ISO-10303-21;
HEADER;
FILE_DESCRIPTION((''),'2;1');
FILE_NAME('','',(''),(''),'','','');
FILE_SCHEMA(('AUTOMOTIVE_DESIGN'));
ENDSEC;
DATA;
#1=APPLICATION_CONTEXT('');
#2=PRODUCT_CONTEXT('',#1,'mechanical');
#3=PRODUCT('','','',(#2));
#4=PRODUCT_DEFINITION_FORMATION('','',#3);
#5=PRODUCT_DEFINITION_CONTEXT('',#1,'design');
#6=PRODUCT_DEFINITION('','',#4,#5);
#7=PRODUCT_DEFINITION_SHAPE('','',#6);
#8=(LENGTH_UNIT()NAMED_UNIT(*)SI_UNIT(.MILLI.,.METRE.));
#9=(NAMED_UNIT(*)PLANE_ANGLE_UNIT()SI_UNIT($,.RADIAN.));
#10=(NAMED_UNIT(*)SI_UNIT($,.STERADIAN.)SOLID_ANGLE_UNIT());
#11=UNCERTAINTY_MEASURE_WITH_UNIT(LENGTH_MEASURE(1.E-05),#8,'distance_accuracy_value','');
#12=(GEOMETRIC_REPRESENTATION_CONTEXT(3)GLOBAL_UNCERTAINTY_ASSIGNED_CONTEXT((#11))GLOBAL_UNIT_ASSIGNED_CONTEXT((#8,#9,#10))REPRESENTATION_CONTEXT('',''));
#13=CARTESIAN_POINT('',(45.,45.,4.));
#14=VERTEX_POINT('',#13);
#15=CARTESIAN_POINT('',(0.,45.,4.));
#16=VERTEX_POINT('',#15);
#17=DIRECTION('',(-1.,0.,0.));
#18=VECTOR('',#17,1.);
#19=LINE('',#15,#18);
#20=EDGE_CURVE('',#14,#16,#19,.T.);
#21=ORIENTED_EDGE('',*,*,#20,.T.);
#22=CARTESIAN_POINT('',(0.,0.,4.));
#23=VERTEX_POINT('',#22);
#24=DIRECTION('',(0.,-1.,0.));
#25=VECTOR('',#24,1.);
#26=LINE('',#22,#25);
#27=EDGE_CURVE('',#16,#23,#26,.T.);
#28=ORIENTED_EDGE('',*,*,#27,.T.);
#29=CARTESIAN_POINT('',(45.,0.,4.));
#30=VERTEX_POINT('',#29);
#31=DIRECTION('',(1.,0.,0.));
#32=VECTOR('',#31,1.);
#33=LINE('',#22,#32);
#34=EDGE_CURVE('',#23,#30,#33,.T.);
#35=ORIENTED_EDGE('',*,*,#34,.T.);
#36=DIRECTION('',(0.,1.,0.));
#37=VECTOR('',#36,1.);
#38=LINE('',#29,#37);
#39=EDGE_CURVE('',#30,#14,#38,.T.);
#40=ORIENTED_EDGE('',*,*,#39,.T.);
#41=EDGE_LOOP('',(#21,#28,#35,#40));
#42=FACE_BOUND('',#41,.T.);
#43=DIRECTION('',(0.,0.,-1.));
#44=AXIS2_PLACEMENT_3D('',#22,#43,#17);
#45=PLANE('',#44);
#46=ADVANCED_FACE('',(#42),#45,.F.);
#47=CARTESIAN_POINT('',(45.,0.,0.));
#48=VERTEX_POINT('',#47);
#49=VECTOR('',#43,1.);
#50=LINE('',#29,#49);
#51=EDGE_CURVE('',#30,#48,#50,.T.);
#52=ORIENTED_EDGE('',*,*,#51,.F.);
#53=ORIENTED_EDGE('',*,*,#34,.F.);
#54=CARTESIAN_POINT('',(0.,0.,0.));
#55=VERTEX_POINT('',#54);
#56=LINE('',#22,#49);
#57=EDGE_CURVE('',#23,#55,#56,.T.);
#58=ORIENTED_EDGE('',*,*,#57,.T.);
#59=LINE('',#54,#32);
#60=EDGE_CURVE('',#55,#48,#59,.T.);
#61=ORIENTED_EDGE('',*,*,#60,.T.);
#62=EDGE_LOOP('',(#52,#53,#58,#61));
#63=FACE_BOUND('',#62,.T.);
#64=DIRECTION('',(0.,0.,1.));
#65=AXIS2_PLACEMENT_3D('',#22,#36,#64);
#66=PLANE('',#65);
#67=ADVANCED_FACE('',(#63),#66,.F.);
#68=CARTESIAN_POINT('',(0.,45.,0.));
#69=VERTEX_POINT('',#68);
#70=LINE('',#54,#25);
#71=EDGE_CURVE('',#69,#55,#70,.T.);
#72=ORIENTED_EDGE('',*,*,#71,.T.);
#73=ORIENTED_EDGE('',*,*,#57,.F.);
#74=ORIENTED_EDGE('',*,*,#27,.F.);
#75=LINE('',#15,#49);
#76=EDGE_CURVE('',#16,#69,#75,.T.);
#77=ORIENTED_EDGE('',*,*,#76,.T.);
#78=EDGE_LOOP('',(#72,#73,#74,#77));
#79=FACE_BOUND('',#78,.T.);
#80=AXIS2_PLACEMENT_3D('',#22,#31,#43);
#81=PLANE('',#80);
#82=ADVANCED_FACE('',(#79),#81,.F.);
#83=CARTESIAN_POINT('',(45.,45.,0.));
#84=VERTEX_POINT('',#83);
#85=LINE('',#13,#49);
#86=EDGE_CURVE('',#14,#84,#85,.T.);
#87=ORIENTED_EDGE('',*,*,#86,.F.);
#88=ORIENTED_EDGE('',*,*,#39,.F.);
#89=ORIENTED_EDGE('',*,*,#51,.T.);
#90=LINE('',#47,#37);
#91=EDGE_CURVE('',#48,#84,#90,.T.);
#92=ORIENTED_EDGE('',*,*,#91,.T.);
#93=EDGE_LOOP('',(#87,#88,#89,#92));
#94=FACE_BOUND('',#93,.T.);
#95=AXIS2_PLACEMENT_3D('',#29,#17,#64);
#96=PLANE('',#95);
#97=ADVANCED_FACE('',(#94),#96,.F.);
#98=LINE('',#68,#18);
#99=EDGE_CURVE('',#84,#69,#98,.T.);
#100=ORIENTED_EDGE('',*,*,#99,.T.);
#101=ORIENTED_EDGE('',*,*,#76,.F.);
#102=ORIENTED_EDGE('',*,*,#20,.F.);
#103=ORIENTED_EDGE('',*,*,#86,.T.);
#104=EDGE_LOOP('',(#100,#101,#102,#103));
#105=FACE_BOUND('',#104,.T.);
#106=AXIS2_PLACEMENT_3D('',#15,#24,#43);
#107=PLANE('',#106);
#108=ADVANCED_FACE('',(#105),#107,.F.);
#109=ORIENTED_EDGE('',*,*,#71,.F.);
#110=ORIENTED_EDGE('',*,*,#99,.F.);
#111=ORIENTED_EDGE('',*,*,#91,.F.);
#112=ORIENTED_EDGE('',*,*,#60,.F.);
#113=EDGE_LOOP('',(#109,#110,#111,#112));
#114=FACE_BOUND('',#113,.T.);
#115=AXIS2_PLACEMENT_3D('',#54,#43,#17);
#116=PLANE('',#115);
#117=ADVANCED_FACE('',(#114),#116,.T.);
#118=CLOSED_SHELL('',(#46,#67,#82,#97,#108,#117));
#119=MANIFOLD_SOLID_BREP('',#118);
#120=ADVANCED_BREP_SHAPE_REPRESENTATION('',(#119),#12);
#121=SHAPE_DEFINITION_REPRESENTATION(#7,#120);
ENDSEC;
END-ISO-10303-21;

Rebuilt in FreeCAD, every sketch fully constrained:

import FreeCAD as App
import Part
import Sketcher

doc = App.newDocument("Part")
params = doc.addObject("Spreadsheet::Sheet", "Params")
for row, (alias, value) in enumerate([
    ("sketch1_width", "45 mm"),
    ("pad1_length", "4 mm"),
], start=1):
    params.set(f"A{row}", alias)
    params.set(f"B{row}", "=" + value)
    params.setAlias(f"B{row}", alias)

body = doc.addObject("PartDesign::Body", "Body")

sketch1 = doc.addObject("Sketcher::SketchObject", "Sketch")
body.addObject(sketch1)
sketch1.AttachmentSupport = (doc.XY_Plane, [""])
sketch1.MapMode = "FlatFace"
sketch1.addGeometry([
    Part.LineSegment(App.Vector(0, 45, 0), App.Vector(0, 0, 0)),
    Part.LineSegment(App.Vector(0, 0, 0), App.Vector(45, 0, 0)),
    Part.LineSegment(App.Vector(45, 0, 0), App.Vector(45, 45, 0)),
    Part.LineSegment(App.Vector(45, 45, 0), App.Vector(0, 45, 0)),
], False)
sketch1.addConstraint([
    Sketcher.Constraint("Coincident", 0, 2, 1, 1),
    Sketcher.Constraint("Coincident", 1, 2, 2, 1),
    Sketcher.Constraint("Coincident", 2, 2, 3, 1),
    Sketcher.Constraint("Coincident", 3, 2, 0, 1),
    Sketcher.Constraint("Vertical", 0),
    Sketcher.Constraint("Horizontal", 1),
    Sketcher.Constraint("Vertical", 2),
    Sketcher.Constraint("Horizontal", 3),
    Sketcher.Constraint("Coincident", 0, 2, -1, 1),
    Sketcher.Constraint("Equal", 3, 0),
    Sketcher.Constraint("DistanceX", 1, 1, 1, 2, 45.0),
])
sketch1.setExpression("Constraints[10]", "Params.sketch1_width")
pad1 = doc.addObject("PartDesign::Pad", "Pad")
body.addObject(pad1)
pad1.Profile = sketch1
pad1.setExpression("Length", "Params.pad1_length")

doc.recompute()
